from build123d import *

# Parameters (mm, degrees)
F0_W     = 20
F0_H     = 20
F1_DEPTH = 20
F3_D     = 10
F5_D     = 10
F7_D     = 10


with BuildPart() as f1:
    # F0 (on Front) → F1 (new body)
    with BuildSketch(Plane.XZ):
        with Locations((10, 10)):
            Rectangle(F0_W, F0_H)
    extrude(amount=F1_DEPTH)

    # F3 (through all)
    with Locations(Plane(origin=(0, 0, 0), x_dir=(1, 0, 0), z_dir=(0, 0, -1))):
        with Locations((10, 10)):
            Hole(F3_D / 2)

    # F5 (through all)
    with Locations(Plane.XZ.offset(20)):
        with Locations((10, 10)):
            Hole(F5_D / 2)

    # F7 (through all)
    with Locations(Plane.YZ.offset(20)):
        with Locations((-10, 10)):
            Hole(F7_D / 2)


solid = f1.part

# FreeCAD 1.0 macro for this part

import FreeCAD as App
import Part
import Sketcher
from FreeCAD import Vector
Q = App.Units.Quantity

doc = App.newDocument("Part")
body = doc.addObject("PartDesign::Body", "Body")

sketch1 = body.newObject("Sketcher::SketchObject", "Sketch")
sketch1.AttachmentSupport = (doc.getObject("XZ_Plane"), [""])
sketch1.MapMode = "FlatFace"
sketch1.addGeometry([
    Part.LineSegment(Vector(0, 20, 0), Vector(0, 0, 0)),
    Part.LineSegment(Vector(0, 0, 0), Vector(20, 0, 0)),
    Part.LineSegment(Vector(20, 0, 0), Vector(20, 20, 0)),
    Part.LineSegment(Vector(20, 20, 0), Vector(0, 20, 0)),
], False)
sketch1.addConstraint([
    Sketcher.Constraint("Coincident", 0, 2, 1, 1),
    Sketcher.Constraint("Coincident", 1, 2, 2, 1),
    Sketcher.Constraint("Coincident", 2, 2, 3, 1),
    Sketcher.Constraint("Coincident", 3, 2, 0, 1),
    Sketcher.Constraint("Vertical", 0),
    Sketcher.Constraint("Horizontal", 1),
    Sketcher.Constraint("Vertical", 2),
    Sketcher.Constraint("Horizontal", 3),
    Sketcher.Constraint("Coincident", 0, 2, -1, 1),
    Sketcher.Constraint("Equal", 3, 0),
    Sketcher.Constraint("DistanceX", 1, 1, 1, 2, Q("20 mm")),
])
pad1 = body.newObject("PartDesign::Pad", "Pad")
pad1.Profile = sketch1
pad1.Length = 20

sketch2 = body.newObject("Sketcher::SketchObject", "Sketch001")
sketch2.AttachmentSupport = (doc.getObject("XY_Plane"), [""])
sketch2.MapMode = "FlatFace"
sketch2.addGeometry(Part.Circle(Vector(10, -10, 0), Vector(0, 0, 1), 5), False)
sketch2.addConstraint([
    Sketcher.Constraint("Diameter", 0, Q("10 mm")),
    Sketcher.Constraint("DistanceX", -1, 1, 0, 3, Q("10 mm")),
    Sketcher.Constraint("DistanceY", 0, 3, -1, 1, Q("10 mm")),
])
doc.recompute()
hole = body.newObject("PartDesign::Hole", "Hole")
hole.Profile = sketch2
hole.ThreadType = "None"
hole.Diameter = 10
hole.DepthType = "ThroughAll"
hole.Reversed = True

sketch3 = body.newObject("Sketcher::SketchObject", "Sketch002")
sketch3.AttachmentSupport = (doc.getObject("XZ_Plane"), [""])
sketch3.MapMode = "FlatFace"
sketch3.AttachmentOffset = App.Placement(Vector(0, 0, 20), App.Rotation())
sketch3.addGeometry(Part.Circle(Vector(10, 10, 0), Vector(0, 0, 1), 5), False)
sketch3.addConstraint([
    Sketcher.Constraint("Diameter", 0, Q("10 mm")),
    Sketcher.Constraint("DistanceX", -1, 1, 0, 3, Q("10 mm")),
    Sketcher.Constraint("DistanceY", -1, 1, 0, 3, Q("10 mm")),
])
doc.recompute()
hole2 = body.newObject("PartDesign::Hole", "Hole001")
hole2.Profile = sketch3
hole2.ThreadType = "None"
hole2.Diameter = 10
hole2.DepthType = "ThroughAll"

sketch4 = body.newObject("Sketcher::SketchObject", "Sketch003")
sketch4.AttachmentSupport = (doc.getObject("YZ_Plane"), [""])
sketch4.MapMode = "FlatFace"
sketch4.AttachmentOffset = App.Placement(Vector(0, 0, 20), App.Rotation())
sketch4.addGeometry(Part.Circle(Vector(-10, 10, 0), Vector(0, 0, 1), 5), False)
sketch4.addConstraint([
    Sketcher.Constraint("Diameter", 0, Q("10 mm")),
    Sketcher.Constraint("DistanceX", 0, 3, -1, 1, Q("10 mm")),
    Sketcher.Constraint("DistanceY", -1, 1, 0, 3, Q("10 mm")),
])
doc.recompute()
hole3 = body.newObject("PartDesign::Hole", "Hole002")
hole3.Profile = sketch4
hole3.ThreadType = "None"
hole3.Diameter = 10
hole3.DepthType = "ThroughAll"

doc.recompute()
